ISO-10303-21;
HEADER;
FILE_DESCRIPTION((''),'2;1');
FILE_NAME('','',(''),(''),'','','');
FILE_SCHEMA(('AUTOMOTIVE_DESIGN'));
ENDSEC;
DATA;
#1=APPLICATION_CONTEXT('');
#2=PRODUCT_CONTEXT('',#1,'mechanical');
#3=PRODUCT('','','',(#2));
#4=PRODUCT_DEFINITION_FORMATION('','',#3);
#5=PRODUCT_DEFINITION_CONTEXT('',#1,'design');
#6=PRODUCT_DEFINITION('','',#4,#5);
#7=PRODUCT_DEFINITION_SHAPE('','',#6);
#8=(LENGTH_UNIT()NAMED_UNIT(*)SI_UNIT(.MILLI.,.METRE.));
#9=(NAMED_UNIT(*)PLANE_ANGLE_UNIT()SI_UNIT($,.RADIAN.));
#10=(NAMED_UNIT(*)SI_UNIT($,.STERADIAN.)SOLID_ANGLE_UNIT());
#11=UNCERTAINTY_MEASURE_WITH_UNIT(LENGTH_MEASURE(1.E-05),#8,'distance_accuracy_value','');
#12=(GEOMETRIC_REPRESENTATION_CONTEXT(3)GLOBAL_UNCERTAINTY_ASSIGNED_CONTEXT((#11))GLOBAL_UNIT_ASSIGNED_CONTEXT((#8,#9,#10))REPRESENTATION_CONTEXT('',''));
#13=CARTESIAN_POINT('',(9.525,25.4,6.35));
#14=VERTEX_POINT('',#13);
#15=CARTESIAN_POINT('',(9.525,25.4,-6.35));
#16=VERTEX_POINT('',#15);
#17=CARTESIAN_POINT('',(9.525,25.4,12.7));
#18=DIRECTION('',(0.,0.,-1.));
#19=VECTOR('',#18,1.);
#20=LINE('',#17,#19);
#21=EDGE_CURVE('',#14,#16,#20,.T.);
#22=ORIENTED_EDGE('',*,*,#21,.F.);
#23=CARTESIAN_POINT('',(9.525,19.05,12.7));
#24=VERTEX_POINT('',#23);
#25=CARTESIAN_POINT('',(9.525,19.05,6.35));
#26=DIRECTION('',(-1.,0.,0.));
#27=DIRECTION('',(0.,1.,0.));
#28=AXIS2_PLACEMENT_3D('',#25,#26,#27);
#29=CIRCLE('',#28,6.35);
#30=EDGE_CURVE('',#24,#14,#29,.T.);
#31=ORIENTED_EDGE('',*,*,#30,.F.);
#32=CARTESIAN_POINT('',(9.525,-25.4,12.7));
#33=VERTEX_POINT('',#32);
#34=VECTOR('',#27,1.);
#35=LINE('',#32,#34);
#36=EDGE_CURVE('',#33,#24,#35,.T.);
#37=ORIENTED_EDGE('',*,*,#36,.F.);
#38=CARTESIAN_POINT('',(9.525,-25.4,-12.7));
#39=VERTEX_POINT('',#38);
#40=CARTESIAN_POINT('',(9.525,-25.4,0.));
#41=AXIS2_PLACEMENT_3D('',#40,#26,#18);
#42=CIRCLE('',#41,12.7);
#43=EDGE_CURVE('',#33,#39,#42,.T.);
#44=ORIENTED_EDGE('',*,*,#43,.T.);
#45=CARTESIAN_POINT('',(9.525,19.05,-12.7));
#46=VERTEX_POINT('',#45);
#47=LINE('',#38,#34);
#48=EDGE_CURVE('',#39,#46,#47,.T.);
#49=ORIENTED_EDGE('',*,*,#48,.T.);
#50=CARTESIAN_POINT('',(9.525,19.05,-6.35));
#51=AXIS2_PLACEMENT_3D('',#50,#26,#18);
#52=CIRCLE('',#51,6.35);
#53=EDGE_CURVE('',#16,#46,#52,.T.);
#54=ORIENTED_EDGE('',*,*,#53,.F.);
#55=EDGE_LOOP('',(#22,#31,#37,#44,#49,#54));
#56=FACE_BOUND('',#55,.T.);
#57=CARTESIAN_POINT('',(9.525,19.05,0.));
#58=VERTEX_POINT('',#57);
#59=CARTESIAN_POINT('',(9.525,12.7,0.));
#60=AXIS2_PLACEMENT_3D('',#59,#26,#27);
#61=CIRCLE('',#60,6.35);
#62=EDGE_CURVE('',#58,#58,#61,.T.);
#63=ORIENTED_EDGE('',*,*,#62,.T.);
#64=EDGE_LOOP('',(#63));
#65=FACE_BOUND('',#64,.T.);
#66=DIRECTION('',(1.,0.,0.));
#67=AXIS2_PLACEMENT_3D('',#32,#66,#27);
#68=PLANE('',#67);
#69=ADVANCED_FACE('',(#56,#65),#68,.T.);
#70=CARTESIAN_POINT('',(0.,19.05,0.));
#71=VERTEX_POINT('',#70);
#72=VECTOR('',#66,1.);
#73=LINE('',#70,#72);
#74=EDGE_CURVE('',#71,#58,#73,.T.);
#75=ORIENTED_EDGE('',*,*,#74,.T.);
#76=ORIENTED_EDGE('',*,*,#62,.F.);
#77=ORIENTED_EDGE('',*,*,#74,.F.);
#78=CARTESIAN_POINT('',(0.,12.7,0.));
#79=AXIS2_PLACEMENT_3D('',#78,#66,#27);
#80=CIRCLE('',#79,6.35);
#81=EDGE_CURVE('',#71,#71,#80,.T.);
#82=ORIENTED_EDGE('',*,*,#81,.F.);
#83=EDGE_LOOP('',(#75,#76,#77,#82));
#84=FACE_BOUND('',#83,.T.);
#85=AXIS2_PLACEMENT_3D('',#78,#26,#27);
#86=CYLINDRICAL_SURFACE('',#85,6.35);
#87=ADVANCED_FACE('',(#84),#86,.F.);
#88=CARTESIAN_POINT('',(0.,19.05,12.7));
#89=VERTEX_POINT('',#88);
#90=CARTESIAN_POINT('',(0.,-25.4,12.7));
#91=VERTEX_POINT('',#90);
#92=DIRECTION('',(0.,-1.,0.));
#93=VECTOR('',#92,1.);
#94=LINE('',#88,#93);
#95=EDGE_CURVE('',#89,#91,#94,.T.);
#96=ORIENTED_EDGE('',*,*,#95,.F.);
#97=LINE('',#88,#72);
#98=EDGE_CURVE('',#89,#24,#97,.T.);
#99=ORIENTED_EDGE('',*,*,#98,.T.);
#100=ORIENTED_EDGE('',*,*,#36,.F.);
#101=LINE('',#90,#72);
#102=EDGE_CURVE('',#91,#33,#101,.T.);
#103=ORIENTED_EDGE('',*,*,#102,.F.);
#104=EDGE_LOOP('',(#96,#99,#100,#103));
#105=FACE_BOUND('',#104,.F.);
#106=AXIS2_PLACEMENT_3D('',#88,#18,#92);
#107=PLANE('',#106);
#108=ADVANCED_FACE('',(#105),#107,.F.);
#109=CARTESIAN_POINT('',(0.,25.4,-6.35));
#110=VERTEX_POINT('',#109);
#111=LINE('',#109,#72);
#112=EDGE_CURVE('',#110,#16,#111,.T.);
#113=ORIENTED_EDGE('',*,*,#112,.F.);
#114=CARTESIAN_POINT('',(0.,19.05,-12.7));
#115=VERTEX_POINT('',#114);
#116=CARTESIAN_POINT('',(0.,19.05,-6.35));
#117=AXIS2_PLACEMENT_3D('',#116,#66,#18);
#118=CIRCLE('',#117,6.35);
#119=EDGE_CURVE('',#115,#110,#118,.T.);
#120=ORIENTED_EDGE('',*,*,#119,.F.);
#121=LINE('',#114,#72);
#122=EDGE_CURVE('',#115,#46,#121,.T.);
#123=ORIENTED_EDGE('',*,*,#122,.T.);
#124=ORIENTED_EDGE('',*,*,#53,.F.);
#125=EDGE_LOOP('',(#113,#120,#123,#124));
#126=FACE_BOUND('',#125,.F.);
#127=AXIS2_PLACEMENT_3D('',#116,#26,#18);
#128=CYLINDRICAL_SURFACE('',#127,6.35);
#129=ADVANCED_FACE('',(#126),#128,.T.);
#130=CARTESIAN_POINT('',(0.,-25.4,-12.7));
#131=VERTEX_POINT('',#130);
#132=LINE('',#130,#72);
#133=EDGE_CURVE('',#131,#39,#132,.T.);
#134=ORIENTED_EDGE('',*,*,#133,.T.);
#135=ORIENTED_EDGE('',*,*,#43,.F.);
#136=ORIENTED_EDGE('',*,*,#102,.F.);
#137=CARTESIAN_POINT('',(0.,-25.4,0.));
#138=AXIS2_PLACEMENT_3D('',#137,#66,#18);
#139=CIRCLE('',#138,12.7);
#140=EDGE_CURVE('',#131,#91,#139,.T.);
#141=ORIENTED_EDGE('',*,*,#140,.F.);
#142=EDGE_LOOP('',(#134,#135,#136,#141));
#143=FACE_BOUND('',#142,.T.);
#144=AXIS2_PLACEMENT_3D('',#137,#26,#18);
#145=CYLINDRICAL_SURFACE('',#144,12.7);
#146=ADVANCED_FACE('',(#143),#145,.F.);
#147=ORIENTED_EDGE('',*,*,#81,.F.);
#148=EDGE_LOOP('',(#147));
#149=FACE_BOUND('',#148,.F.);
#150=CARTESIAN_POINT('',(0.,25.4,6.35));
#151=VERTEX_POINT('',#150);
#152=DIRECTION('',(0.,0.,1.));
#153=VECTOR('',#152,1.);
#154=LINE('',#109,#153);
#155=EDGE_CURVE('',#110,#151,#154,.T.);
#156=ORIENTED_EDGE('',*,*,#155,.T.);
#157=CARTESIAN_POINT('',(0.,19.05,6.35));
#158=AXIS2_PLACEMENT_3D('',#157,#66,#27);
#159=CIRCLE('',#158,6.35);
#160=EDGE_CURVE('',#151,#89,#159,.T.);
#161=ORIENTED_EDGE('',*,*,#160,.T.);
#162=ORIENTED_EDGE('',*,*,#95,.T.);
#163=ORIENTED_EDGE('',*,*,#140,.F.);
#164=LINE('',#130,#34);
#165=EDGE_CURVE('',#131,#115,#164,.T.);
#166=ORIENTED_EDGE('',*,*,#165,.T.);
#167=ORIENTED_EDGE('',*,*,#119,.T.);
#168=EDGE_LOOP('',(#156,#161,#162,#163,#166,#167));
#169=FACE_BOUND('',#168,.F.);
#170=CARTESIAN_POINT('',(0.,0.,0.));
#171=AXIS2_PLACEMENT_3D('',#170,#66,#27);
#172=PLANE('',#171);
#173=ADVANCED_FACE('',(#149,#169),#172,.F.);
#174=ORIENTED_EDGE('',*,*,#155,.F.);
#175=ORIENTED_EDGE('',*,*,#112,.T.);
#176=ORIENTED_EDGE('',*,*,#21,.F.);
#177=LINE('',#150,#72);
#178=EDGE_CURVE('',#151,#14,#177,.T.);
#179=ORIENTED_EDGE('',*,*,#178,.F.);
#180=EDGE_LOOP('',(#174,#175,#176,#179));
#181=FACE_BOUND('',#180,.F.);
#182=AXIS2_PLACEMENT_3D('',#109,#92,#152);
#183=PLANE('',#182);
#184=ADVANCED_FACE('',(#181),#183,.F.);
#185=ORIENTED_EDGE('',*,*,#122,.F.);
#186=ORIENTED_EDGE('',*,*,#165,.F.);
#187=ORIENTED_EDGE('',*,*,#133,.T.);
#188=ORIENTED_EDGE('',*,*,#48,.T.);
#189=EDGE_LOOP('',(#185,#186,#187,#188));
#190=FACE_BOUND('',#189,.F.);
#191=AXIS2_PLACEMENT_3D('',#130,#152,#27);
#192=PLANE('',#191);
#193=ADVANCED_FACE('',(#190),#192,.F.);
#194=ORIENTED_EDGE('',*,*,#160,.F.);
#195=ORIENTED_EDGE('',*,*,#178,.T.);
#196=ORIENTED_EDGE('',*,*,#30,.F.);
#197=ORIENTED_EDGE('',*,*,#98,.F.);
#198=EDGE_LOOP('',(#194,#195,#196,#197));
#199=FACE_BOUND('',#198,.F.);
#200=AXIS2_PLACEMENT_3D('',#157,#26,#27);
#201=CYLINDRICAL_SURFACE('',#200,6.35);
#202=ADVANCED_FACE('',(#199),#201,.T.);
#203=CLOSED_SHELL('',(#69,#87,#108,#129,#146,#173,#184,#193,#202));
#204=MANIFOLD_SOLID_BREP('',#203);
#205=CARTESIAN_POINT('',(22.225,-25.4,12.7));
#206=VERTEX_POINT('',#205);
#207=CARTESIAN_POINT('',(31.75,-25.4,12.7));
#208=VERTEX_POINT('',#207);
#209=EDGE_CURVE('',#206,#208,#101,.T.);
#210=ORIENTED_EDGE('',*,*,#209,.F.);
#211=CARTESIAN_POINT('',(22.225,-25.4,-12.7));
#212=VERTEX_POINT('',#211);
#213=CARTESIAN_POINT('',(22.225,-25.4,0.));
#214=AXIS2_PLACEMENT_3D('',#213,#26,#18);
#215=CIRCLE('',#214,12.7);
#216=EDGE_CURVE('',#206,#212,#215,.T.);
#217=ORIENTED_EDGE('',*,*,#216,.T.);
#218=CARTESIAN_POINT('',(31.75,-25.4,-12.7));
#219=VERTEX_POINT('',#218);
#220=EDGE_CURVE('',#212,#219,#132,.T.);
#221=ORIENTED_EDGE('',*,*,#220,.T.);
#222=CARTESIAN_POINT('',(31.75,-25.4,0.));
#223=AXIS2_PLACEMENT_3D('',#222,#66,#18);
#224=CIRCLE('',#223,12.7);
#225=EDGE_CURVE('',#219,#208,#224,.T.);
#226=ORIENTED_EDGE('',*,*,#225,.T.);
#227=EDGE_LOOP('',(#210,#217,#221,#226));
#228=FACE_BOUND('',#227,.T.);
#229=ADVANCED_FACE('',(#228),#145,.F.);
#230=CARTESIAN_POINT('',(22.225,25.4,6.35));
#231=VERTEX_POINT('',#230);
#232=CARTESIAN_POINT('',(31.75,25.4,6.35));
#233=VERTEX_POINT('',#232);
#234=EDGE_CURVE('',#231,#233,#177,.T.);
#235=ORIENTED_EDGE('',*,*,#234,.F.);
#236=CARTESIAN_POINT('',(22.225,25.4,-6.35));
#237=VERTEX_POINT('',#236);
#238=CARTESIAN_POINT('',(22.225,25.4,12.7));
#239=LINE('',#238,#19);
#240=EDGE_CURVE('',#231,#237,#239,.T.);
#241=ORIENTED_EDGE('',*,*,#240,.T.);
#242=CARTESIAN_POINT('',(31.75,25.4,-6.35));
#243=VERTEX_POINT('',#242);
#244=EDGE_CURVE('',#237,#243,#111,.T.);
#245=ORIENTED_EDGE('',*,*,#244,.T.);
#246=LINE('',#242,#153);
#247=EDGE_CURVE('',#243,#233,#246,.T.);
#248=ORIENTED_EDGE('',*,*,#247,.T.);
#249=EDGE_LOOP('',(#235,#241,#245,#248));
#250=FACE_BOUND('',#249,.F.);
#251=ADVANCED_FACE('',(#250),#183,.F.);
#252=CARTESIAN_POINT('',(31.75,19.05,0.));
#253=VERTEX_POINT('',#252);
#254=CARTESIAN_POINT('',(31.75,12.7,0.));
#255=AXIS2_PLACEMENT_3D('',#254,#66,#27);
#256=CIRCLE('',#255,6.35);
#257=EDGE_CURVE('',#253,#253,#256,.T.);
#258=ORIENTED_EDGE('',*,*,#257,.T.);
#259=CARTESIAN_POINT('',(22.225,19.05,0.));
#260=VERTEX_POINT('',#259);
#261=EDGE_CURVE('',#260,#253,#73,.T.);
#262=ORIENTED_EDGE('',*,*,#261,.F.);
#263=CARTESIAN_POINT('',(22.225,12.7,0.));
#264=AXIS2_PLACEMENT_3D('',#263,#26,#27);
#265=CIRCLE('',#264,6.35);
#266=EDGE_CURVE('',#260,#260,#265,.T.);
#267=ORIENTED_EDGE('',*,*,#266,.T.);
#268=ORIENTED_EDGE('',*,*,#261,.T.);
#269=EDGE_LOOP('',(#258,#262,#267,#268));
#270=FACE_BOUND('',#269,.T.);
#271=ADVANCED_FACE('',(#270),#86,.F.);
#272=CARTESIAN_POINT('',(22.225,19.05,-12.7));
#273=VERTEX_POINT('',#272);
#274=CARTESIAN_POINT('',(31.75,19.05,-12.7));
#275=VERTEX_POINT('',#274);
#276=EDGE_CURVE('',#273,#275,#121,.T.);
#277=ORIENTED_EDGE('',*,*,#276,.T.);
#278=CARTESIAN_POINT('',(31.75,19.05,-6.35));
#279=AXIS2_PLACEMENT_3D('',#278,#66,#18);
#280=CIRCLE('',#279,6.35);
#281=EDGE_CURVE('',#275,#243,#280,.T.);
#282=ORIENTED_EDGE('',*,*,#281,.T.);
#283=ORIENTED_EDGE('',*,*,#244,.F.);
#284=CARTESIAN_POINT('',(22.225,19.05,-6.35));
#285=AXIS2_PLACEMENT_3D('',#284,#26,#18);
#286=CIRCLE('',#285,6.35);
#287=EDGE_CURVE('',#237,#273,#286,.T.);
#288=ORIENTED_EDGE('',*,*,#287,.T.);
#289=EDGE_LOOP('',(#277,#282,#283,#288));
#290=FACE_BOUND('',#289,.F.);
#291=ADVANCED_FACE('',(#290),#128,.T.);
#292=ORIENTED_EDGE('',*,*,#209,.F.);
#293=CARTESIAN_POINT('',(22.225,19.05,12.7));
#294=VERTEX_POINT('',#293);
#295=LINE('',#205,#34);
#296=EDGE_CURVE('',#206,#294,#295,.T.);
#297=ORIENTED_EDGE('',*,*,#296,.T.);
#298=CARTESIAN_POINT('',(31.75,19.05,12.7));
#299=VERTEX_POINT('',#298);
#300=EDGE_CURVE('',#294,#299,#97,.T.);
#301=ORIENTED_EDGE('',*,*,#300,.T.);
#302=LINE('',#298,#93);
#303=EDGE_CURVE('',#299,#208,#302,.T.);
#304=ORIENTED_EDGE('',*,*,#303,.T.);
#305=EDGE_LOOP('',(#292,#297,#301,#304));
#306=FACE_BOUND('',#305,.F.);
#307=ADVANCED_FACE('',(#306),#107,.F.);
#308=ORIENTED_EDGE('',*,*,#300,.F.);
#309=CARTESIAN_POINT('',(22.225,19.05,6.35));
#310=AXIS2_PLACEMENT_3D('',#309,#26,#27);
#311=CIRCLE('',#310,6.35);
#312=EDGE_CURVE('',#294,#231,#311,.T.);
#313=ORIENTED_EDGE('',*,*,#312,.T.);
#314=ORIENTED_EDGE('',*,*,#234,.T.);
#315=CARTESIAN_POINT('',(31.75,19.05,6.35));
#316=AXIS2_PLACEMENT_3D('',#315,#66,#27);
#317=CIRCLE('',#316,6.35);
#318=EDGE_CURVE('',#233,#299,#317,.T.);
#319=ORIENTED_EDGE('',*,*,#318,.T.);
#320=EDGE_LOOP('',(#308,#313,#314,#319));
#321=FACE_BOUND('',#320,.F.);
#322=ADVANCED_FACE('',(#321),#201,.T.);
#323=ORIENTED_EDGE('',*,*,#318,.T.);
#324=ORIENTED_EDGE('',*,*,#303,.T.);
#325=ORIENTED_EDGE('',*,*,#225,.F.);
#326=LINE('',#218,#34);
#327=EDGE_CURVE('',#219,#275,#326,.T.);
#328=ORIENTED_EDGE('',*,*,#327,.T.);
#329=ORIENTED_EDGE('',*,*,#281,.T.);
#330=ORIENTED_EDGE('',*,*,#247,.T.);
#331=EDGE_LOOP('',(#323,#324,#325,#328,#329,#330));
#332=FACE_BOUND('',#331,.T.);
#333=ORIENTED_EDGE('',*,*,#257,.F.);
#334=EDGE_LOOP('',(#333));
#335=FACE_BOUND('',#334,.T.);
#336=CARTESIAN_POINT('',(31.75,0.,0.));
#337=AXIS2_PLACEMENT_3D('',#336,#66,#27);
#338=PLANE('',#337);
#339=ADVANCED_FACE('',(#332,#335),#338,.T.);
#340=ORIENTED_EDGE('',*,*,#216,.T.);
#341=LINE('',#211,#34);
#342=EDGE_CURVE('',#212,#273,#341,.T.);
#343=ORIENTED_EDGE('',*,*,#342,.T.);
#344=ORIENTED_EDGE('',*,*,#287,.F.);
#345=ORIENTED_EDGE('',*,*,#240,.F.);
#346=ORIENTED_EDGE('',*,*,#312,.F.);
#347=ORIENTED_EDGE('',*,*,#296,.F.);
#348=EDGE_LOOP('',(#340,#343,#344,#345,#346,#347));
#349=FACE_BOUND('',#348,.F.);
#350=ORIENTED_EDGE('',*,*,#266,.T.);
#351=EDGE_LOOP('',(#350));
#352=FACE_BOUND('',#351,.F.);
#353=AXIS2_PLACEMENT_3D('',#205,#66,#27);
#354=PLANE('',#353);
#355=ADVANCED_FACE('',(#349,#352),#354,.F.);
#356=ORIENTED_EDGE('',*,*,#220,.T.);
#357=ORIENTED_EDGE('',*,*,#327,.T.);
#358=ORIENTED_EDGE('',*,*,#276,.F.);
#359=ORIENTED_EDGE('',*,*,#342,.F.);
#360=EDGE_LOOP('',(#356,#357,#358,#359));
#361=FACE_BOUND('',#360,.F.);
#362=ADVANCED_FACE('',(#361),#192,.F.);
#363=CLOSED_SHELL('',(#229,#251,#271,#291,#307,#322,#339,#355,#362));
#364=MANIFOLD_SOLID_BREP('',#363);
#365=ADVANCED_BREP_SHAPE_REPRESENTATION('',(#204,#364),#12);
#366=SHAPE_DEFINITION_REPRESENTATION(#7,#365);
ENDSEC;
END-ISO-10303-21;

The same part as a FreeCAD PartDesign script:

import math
import FreeCAD as App
import Part
import Sketcher
from FreeCAD import Vector
Q = App.Units.Quantity

doc = App.newDocument("Part")
body = doc.addObject("PartDesign::Body", "Body")
body.AllowCompound = True

sketch1 = body.newObject("Sketcher::SketchObject", "Sketch")
sketch1.AttachmentSupport = (doc.getObject("YZ_Plane"), [""])
sketch1.MapMode = "FlatFace"
sketch1.addGeometry([
    Part.ArcOfCircle(Part.Circle(Vector(19.05, 6.35, 0), Vector(0, 0, 1), 6.35), math.radians(0), math.radians(90)),
    Part.LineSegment(Vector(19.05, 12.7, 0), Vector(-25.4, 12.7, 0)),
    Part.ArcOfCircle(Part.Circle(Vector(-25.4, 0, 0), Vector(0, 0, 1), 12.7), math.radians(-90), math.radians(90)),
    Part.LineSegment(Vector(-25.4, -12.7, 0), Vector(19.05, -12.7, 0)),
    Part.ArcOfCircle(Part.Circle(Vector(19.05, -6.35, 0), Vector(0, 0, 1), 6.35), math.radians(-90), math.radians(0)),
    Part.LineSegment(Vector(25.4, -6.35, 0), Vector(25.4, 6.35, 0)),
    Part.Circle(Vector(12.7, 0, 0), Vector(0, 0, 1), 6.35),
], False)
sketch1.addConstraint([
    Sketcher.Constraint("Tangent", 0, 2, 1, 1),
    Sketcher.Constraint("Tangent", 1, 2, 2, 2),
    Sketcher.Constraint("Tangent", 2, 1, 3, 1),
    Sketcher.Constraint("Tangent", 3, 2, 4, 1),
    Sketcher.Constraint("Tangent", 4, 2, 5, 1),
    Sketcher.Constraint("Tangent", 5, 2, 0, 1),
    Sketcher.Constraint("Horizontal", 1),
    Sketcher.Constraint("Horizontal", 3),
    Sketcher.Constraint("Vertical", 5),
    Sketcher.Constraint("Equal", 0, 4),
    Sketcher.Constraint("Equal", 4, 6),
    Sketcher.Constraint("PointOnObject", 2, 3, -1),
    Sketcher.Constraint("PointOnObject", 6, 3, -1),
    Sketcher.Constraint("Diameter", 6, Q("0.5 in")),
    Sketcher.Constraint("Radius", 2, Q("0.5 in")),
    Sketcher.Constraint("DistanceX", 2, 3, -1, 1, Q("1 in")),
    Sketcher.Constraint("DistanceX", -1, 1, 4, 2, Q("1 in")),
    Sketcher.Constraint("DistanceX", -1, 1, 6, 3, Q("0.5 in")),
])
pad1 = body.newObject("PartDesign::Pad", "Pad")
pad1.Profile = sketch1
pad1.Length = Q("1.25 in")

sketch2 = body.newObject("Sketcher::SketchObject", "Sketch001")
sketch2.AttachmentSupport = (doc.getObject("XY_Plane"), [""])
sketch2.MapMode = "FlatFace"
sketch2.AttachmentOffset = App.Placement(Vector(0, 0, 0.5 * 25.4), App.Rotation())
sketch2.addGeometry([
    Part.LineSegment(Vector(9.525, 25.4, 0), Vector(9.525, -25.4, 0)),
    Part.LineSegment(Vector(9.525, -25.4, 0), Vector(22.225, -25.4, 0)),
    Part.LineSegment(Vector(22.225, -25.4, 0), Vector(22.225, 25.4, 0)),
    Part.LineSegment(Vector(22.225, 25.4, 0), Vector(9.525, 25.4, 0)),
], False)
sketch2.addConstraint([
    Sketcher.Constraint("Coincident", 0, 2, 1, 1),
    Sketcher.Constraint("Coincident", 1, 2, 2, 1),
    Sketcher.Constraint("Coincident", 2, 2, 3, 1),
    Sketcher.Constraint("Coincident", 3, 2, 0, 1),
    Sketcher.Constraint("Vertical", 0),
    Sketcher.Constraint("Horizontal", 1),
    Sketcher.Constraint("Vertical", 2),
    Sketcher.Constraint("Horizontal", 3),
    Sketcher.Constraint("DistanceX", 1, 1, 1, 2, Q("0.5 in")),
    Sketcher.Constraint("DistanceY", 0, 2, 0, 1, Q("2 in")),
    Sketcher.Constraint("DistanceX", -1, 1, 0, 2, Q("0.375 in")),
    Sketcher.Constraint("DistanceY", 0, 2, -1, 1, Q("1 in")),
])
pocket1 = body.newObject("PartDesign::Pocket", "Pocket")
pocket1.Profile = sketch2
pocket1.Length = Q("1 in")

doc.recompute()
